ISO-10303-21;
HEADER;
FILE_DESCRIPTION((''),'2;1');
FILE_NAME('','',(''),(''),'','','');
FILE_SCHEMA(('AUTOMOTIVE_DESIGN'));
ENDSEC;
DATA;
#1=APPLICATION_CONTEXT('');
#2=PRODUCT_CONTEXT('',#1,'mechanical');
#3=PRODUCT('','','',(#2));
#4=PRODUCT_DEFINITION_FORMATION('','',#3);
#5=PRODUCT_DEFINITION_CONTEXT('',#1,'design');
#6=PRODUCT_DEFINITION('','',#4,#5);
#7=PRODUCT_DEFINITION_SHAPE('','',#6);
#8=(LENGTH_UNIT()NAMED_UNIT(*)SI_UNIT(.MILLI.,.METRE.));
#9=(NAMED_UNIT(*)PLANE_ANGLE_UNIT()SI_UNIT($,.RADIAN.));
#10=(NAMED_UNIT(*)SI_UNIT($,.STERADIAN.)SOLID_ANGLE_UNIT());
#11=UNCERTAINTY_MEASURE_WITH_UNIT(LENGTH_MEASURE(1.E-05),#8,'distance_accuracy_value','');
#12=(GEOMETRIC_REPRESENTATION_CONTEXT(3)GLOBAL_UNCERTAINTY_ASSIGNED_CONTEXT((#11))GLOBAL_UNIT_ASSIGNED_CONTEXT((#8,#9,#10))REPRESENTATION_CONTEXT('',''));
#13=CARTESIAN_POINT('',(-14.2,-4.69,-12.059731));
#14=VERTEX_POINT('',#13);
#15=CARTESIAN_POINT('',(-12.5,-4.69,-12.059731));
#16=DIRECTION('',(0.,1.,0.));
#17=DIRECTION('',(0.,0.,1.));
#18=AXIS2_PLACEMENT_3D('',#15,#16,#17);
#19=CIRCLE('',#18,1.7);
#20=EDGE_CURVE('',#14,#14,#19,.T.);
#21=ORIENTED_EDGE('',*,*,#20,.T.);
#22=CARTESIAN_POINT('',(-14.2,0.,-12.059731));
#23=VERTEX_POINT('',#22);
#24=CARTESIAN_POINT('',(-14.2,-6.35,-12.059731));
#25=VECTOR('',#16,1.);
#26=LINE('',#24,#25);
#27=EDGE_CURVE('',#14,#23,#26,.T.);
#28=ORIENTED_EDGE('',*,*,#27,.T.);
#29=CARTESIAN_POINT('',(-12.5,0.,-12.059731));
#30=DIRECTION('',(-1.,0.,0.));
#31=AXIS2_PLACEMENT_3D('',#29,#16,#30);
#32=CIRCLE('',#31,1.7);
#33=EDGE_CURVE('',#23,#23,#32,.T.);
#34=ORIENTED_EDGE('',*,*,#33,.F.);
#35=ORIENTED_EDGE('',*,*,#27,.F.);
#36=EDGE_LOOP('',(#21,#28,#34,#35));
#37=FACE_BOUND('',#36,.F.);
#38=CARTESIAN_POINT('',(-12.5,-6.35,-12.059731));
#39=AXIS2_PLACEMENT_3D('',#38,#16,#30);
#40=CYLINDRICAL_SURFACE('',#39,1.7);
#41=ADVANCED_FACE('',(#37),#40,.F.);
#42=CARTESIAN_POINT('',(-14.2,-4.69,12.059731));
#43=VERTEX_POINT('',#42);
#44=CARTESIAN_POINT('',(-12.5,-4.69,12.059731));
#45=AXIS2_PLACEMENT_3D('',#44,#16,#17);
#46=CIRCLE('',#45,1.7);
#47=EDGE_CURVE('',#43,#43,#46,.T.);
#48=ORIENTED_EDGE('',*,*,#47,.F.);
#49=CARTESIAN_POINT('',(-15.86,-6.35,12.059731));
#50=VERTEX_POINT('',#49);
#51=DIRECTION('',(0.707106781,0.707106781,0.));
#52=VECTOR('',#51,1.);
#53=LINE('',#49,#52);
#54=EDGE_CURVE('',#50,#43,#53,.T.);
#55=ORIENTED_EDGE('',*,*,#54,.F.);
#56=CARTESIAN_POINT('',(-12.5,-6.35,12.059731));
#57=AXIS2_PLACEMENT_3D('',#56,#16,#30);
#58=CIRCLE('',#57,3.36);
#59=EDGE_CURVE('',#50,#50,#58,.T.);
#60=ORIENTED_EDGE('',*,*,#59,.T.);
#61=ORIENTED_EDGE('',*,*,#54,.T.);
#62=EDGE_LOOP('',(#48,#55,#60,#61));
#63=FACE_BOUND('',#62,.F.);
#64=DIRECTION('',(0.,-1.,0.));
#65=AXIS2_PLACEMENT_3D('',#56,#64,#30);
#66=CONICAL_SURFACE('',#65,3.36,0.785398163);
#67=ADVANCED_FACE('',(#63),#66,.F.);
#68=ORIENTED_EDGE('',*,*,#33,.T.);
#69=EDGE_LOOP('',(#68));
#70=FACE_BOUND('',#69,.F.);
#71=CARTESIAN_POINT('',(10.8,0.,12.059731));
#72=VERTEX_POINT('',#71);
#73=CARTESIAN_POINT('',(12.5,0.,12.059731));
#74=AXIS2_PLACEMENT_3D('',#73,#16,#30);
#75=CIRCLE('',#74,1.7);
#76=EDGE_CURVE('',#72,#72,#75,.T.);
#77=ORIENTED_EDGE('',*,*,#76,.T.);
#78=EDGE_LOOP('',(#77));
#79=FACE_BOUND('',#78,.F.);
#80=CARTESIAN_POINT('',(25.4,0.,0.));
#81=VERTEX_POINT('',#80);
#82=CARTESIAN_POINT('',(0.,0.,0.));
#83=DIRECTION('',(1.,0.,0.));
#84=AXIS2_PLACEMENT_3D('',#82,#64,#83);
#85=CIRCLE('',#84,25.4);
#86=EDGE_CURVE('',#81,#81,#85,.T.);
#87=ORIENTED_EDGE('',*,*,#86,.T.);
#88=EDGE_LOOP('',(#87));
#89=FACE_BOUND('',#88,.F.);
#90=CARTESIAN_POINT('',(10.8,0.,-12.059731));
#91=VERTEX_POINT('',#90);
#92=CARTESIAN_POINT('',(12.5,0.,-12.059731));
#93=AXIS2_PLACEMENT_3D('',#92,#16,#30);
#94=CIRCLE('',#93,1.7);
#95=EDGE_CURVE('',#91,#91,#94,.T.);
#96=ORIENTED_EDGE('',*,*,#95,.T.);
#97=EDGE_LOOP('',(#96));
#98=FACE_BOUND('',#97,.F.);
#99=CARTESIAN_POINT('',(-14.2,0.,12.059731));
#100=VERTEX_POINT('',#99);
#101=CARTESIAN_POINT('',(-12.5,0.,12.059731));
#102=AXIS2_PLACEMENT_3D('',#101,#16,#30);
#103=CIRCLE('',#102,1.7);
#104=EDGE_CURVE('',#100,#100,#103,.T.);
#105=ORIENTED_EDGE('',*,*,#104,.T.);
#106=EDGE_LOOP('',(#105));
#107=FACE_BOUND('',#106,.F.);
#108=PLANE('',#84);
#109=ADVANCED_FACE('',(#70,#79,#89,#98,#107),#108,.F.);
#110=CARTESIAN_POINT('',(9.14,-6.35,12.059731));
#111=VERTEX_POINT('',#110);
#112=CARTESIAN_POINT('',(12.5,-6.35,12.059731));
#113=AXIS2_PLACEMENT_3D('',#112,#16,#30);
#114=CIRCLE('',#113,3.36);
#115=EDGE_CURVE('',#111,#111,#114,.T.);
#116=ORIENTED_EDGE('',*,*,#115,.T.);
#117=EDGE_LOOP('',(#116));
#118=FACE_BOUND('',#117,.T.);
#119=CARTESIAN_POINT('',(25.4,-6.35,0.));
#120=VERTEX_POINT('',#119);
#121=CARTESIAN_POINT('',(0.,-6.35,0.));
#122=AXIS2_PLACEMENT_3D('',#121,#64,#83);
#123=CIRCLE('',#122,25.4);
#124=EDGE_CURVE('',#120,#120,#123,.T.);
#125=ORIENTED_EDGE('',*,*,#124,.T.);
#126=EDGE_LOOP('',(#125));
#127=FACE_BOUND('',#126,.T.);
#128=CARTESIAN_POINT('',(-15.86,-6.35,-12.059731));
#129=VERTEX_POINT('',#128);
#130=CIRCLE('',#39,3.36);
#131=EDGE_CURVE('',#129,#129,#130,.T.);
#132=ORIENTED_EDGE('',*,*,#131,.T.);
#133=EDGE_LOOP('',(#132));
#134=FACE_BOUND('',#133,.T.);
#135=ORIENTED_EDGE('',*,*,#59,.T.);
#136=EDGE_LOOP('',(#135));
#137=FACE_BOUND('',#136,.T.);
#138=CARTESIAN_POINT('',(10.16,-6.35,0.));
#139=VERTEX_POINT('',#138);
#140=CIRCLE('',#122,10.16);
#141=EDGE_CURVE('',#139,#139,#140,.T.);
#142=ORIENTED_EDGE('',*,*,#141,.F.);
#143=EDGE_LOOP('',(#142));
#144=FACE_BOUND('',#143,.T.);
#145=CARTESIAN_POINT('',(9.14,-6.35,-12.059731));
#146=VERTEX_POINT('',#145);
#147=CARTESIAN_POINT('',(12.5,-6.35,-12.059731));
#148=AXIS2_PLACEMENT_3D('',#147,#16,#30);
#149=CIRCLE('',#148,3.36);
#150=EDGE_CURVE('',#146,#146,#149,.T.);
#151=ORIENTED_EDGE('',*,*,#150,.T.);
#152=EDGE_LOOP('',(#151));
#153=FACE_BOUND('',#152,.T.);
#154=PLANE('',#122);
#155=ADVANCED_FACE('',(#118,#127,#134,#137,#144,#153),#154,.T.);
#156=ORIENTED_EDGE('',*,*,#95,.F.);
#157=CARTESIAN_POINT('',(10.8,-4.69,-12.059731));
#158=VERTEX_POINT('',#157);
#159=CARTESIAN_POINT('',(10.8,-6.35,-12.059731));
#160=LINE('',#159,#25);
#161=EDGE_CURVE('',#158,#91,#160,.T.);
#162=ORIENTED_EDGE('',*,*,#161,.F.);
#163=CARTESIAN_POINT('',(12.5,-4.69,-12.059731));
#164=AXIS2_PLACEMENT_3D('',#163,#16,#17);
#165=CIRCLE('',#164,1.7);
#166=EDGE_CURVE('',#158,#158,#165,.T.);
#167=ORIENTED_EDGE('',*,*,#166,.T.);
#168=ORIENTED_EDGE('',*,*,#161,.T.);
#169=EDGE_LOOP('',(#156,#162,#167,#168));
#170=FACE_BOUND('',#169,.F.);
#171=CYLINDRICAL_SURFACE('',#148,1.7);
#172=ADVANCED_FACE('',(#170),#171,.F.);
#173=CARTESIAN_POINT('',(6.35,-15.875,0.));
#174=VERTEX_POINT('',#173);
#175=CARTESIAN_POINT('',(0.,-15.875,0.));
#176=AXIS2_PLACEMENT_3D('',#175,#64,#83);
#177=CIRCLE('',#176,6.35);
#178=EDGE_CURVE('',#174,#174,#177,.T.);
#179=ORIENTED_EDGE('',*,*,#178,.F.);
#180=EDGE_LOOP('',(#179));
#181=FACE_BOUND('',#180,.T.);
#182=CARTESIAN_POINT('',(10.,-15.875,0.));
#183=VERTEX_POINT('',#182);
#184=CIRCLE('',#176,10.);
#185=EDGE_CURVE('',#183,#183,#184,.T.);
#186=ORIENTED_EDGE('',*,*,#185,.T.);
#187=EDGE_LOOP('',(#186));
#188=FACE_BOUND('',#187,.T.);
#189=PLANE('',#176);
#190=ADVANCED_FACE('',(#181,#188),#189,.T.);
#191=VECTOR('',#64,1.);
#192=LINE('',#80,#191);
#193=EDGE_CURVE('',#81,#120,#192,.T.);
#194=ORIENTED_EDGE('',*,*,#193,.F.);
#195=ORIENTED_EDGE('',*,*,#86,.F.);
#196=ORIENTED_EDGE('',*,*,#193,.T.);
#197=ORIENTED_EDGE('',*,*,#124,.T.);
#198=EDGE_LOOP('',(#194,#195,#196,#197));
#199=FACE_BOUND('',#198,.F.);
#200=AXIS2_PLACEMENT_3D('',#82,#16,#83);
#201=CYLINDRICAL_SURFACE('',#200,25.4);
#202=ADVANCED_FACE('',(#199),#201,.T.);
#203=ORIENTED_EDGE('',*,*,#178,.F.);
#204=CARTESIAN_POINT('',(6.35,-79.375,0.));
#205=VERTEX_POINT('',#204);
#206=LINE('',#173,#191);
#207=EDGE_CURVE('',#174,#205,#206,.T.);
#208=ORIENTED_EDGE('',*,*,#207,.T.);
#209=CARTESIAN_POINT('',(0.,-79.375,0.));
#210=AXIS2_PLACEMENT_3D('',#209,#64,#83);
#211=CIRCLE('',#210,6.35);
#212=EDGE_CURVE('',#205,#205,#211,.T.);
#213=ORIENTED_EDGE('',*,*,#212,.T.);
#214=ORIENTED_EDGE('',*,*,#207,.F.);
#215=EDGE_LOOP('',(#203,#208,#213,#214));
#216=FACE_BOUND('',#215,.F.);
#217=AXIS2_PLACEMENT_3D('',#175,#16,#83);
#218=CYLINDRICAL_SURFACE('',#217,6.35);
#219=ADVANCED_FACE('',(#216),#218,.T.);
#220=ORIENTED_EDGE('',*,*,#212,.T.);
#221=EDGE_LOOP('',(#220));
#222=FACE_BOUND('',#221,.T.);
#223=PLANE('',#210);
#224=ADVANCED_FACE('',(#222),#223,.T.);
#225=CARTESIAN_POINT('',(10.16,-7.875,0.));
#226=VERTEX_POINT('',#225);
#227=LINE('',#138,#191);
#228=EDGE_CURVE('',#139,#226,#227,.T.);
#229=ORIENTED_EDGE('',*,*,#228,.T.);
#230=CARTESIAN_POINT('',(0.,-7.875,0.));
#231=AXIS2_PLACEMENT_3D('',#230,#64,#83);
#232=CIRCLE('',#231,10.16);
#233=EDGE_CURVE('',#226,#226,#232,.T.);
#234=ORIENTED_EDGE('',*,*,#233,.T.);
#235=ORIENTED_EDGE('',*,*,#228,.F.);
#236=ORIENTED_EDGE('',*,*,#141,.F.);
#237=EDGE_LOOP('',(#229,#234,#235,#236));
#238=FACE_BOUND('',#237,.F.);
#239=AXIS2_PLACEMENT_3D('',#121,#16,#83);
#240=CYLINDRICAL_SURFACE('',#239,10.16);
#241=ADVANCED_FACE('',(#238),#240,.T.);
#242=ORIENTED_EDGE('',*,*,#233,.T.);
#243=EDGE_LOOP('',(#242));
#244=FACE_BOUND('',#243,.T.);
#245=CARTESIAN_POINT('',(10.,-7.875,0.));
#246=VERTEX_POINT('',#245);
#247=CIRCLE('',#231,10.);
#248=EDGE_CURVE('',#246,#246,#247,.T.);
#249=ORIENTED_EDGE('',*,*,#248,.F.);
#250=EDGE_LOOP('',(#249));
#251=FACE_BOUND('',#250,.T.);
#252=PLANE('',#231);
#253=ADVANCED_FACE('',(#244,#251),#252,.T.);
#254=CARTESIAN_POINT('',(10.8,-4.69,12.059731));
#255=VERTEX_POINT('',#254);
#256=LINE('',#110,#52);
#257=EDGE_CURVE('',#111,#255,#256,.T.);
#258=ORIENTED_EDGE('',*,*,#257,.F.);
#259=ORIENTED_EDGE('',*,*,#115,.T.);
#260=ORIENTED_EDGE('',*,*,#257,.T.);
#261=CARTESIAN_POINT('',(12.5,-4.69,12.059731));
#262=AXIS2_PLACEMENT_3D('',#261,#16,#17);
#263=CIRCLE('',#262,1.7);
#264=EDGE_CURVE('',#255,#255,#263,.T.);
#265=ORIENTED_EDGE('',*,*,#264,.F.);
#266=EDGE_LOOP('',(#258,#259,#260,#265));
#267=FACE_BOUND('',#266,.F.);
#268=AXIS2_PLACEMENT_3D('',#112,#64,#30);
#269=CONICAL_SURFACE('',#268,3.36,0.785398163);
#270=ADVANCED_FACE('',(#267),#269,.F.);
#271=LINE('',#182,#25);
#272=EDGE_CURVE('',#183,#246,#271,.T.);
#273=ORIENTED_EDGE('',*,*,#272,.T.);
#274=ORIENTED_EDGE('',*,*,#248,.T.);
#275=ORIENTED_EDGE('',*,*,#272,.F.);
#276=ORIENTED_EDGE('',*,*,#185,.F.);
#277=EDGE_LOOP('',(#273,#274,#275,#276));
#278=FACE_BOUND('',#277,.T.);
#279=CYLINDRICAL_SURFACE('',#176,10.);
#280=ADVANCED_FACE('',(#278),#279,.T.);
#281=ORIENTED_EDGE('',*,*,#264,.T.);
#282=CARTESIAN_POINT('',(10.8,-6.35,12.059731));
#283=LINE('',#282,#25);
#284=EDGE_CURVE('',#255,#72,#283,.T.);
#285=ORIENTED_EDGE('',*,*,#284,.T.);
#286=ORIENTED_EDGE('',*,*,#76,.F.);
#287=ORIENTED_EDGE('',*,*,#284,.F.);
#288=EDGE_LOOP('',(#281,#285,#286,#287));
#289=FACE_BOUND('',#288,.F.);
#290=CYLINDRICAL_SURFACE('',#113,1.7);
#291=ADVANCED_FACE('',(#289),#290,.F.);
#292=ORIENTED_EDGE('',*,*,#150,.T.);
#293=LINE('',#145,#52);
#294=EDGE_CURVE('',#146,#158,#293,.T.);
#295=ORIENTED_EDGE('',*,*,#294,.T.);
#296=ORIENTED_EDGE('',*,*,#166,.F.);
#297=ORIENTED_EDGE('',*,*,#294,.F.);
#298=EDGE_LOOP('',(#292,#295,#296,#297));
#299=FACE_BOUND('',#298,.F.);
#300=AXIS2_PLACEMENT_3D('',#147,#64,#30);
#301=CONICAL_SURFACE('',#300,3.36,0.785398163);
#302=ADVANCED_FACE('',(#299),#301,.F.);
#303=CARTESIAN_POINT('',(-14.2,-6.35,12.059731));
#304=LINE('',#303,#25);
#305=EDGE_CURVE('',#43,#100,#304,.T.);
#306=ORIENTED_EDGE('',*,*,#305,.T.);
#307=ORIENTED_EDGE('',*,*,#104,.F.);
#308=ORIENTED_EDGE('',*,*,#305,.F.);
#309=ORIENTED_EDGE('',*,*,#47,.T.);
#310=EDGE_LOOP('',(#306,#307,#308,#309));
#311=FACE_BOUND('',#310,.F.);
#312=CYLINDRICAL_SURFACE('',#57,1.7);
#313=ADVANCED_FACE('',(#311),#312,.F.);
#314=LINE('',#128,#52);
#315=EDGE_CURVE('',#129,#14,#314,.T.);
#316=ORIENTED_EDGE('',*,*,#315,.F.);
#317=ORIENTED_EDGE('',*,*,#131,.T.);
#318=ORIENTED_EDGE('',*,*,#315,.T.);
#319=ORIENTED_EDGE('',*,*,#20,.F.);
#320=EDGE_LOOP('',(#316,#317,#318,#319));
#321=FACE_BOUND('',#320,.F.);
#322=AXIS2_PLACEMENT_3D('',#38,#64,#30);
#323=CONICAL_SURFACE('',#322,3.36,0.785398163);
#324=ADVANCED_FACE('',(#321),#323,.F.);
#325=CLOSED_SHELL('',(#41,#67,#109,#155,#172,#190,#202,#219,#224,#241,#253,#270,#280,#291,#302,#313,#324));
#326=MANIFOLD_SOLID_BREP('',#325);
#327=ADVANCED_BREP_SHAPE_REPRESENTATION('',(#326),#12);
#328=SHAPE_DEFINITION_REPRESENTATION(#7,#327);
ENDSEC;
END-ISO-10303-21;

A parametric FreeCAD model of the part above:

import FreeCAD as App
import Part
import Sketcher

V = App.Vector
Q = App.Units.Quantity

doc = App.newDocument("Part")
body = doc.addObject("PartDesign::Body", "Body")

# Sketch on XZ plane
sketch1 = body.newObject("Sketcher::SketchObject", "Sketch")
sketch1.AttachmentSupport = (doc.getObject("XZ_Plane"), [""])
sketch1.MapMode = "FlatFace"
sketch1.addGeometry(Part.Circle(V(0, 0, 0), V(0, 0, 1), 25.4), False)
sketch1.addConstraint(Sketcher.Constraint("Coincident", 0, 3, -1, 1))
sketch1.addConstraint(Sketcher.Constraint("Diameter", 0, Q("2 in")))
pad1 = body.newObject("PartDesign::Pad", "Pad")
pad1.Profile = sketch1
pad1.Length = Q("0.25 in")

# Sketch on XZ plane
sketch2 = body.newObject("Sketcher::SketchObject", "Sketch001")
sketch2.AttachmentSupport = (doc.getObject("XZ_Plane"), [""])
sketch2.MapMode = "FlatFace"
sketch2.AttachmentOffset = App.Placement(V(0, 0, 0.25 * 25.4), App.Rotation())
sketch2.addGeometry(Part.Circle(V(-12.5, 12.059731, 0), V(0, 0, 1), 1.7), False)
sketch2.addGeometry(Part.Circle(V(12.5, 12.059731, 0), V(0, 0, 1), 1.7), False)
sketch2.addGeometry(Part.Circle(V(12.5, -12.059731, 0), V(0, 0, 1), 1.7), False)
sketch2.addGeometry(Part.Circle(V(-12.5, -12.059731, 0), V(0, 0, 1), 1.7), False)
sketch2.addConstraint(Sketcher.Constraint("Equal", 0, 1))
sketch2.addConstraint(Sketcher.Constraint("Equal", 1, 2))
sketch2.addConstraint(Sketcher.Constraint("Equal", 2, 3))
sketch2.addConstraint(Sketcher.Constraint("Symmetric", 0, 3, 2, 3, -1, 1))
sketch2.addConstraint(Sketcher.Constraint("Symmetric", 1, 3, 3, 3, -1, 1))
sketch2.addConstraint(Sketcher.Constraint("Symmetric", 0, 3, 1, 3, -2))
sketch2.addConstraint(Sketcher.Constraint("Diameter", 0, Q("3.4 mm")))
sketch2.addConstraint(Sketcher.Constraint("DistanceX", 0, 3, -1, 1, Q("12.5 mm")))
sketch2.addConstraint(Sketcher.Constraint("DistanceY", -1, 1, 0, 3, Q("12.059731 mm")))
doc.recompute()
hole = body.newObject("PartDesign::Hole", "Hole")
hole.Profile = sketch2
hole.ThreadType = "None"
hole.Diameter = 3.4
hole.DepthType = "ThroughAll"
hole.HoleCutType = "Countersink"
hole.HoleCutDiameter = 6.72
hole.HoleCutCountersinkAngle = 90

# Sketch on XZ plane
sketch3 = body.newObject("Sketcher::SketchObject", "Sketch002")
sketch3.AttachmentSupport = (doc.getObject("XZ_Plane"), [""])
sketch3.MapMode = "FlatFace"
sketch3.AttachmentOffset = App.Placement(V(0, 0, 0.25 * 25.4), App.Rotation())
sketch3.addGeometry(Part.Circle(V(0, 0, 0), V(0, 0, 1), 10.16), False)
sketch3.addConstraint(Sketcher.Constraint("Coincident", 0, 3, -1, 1))
sketch3.addConstraint(Sketcher.Constraint("Diameter", 0, Q("0.8 in")))
pad2 = body.newObject("PartDesign::Pad", "Pad001")
pad2.Profile = sketch3
pad2.Length = Q("0.375 in")

# Sketch on XZ plane
sketch4 = body.newObject("Sketcher::SketchObject", "Sketch003")
sketch4.AttachmentSupport = (doc.getObject("XZ_Plane"), [""])
sketch4.MapMode = "FlatFace"
sketch4.AttachmentOffset = App.Placement(V(0, 0, 0.625 * 25.4), App.Rotation())
sketch4.addGeometry(Part.Circle(V(0, 0, 0), V(0, 0, 1), 10.16), False)
sketch4.addGeometry(Part.Circle(V(0, 0, 0), V(0, 0, 1), 10), False)
sketch4.addConstraint(Sketcher.Constraint("Coincident", 0, 3, -1, 1))
sketch4.addConstraint(Sketcher.Constraint("Coincident", 1, 3, -1, 1))
sketch4.addConstraint(Sketcher.Constraint("Diameter", 0, Q("0.8 in")))
sketch4.addConstraint(Sketcher.Constraint("Diameter", 1, Q("20 mm")))
pocket1 = body.newObject("PartDesign::Pocket", "Pocket")
pocket1.Profile = sketch4
pocket1.Length = 8

# Sketch on XZ plane
sketch5 = body.newObject("Sketcher::SketchObject", "Sketch004")
sketch5.AttachmentSupport = (doc.getObject("XZ_Plane"), [""])
sketch5.MapMode = "FlatFace"
sketch5.AttachmentOffset = App.Placement(V(0, 0, 0.625 * 25.4), App.Rotation())
sketch5.addGeometry(Part.Circle(V(0, 0, 0), V(0, 0, 1), 6.35), False)
sketch5.addConstraint(Sketcher.Constraint("Coincident", 0, 3, -1, 1))
sketch5.addConstraint(Sketcher.Constraint("Diameter", 0, Q("0.5 in")))
pad3 = body.newObject("PartDesign::Pad", "Pad002")
pad3.Profile = sketch5
pad3.Length = Q("2.5 in")

doc.recompute()
